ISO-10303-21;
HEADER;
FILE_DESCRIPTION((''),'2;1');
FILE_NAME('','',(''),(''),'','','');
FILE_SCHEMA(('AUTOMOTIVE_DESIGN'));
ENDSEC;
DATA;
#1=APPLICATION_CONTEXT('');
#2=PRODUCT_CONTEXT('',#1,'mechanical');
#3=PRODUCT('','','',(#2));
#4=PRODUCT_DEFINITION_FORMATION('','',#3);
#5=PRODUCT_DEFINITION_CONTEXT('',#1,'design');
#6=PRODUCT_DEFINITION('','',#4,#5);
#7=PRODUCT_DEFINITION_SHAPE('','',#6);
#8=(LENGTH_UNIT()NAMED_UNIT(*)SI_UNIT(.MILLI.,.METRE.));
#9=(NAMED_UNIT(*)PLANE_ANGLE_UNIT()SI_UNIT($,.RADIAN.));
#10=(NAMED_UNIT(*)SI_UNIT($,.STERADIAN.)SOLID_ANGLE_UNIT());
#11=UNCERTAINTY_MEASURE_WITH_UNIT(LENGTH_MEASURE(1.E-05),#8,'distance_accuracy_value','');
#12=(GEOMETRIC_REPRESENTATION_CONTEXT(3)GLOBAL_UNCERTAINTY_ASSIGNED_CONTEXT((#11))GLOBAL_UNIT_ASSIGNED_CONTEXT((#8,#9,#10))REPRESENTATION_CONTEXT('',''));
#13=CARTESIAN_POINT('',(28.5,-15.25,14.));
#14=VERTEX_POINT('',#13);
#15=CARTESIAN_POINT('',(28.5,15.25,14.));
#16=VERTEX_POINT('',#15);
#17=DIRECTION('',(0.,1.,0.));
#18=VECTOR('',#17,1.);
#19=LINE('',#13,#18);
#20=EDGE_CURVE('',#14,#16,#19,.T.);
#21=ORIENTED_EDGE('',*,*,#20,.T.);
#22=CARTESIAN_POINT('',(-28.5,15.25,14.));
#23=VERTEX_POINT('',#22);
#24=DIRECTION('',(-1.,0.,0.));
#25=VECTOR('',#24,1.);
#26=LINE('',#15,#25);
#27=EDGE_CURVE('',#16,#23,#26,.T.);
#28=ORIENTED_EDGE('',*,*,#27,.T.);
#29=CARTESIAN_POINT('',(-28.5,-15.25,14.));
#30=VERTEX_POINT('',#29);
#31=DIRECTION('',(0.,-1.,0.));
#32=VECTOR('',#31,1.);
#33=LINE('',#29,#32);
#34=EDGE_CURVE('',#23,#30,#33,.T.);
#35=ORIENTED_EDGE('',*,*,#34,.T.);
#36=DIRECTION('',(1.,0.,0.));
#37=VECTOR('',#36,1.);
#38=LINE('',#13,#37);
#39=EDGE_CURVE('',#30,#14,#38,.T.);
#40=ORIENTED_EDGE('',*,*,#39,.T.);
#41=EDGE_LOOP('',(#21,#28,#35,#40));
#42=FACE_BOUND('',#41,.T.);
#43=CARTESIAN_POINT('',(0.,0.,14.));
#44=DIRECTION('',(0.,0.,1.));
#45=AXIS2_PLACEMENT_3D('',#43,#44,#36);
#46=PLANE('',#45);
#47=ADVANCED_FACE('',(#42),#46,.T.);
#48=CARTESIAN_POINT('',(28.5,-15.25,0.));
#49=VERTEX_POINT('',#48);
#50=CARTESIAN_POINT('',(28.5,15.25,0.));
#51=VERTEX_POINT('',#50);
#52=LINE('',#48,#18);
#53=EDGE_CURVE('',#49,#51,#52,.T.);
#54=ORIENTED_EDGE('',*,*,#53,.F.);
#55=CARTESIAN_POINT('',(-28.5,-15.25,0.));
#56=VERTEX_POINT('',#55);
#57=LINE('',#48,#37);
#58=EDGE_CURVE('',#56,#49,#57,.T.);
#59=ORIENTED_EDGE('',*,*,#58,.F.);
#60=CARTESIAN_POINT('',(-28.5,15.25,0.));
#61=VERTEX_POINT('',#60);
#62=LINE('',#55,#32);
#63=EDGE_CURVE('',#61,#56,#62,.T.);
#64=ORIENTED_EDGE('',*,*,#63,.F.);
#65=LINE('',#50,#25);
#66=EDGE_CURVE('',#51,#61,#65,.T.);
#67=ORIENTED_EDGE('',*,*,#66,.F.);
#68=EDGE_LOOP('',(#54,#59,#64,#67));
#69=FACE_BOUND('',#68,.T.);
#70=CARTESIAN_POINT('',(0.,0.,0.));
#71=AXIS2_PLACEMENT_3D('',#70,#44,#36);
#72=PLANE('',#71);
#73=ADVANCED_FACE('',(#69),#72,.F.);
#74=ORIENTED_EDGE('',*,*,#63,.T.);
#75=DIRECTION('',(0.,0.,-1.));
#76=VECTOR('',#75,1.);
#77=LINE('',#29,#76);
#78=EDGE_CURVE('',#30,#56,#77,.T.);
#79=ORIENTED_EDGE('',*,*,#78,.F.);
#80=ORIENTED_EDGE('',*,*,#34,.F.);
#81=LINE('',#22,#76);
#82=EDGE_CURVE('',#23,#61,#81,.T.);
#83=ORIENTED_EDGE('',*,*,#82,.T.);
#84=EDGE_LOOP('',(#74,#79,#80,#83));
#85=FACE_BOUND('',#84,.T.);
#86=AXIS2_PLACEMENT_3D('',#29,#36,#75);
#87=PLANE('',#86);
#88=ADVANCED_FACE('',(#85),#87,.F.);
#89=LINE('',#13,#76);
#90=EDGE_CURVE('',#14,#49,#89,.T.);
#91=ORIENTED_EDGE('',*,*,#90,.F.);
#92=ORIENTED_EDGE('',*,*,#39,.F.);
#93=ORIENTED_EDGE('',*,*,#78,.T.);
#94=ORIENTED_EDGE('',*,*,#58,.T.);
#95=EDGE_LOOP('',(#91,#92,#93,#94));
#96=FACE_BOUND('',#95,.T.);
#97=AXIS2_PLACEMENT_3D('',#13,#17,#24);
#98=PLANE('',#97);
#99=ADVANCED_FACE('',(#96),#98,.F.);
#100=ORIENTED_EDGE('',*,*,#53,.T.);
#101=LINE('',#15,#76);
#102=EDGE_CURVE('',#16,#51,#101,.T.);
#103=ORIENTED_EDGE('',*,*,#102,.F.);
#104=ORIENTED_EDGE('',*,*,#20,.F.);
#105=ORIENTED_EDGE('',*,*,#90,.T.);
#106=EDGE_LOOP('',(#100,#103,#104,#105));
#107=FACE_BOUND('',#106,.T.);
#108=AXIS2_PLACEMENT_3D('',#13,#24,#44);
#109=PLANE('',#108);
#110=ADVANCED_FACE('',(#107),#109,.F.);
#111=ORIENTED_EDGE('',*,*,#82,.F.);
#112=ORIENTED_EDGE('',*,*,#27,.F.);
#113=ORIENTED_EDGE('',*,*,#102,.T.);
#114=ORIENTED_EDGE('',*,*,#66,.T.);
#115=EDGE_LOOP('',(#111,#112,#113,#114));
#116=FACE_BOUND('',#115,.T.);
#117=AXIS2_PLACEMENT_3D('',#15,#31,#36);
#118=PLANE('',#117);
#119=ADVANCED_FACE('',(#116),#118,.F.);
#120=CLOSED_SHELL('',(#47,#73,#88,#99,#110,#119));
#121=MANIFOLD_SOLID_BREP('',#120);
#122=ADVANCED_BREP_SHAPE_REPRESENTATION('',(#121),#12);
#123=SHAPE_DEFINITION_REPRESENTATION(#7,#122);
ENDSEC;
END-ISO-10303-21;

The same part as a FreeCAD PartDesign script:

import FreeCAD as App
import Part
import Sketcher
from FreeCAD import Vector

doc = App.newDocument("Part")
body = doc.addObject("PartDesign::Body", "Body")

sketch1 = doc.addObject("Sketcher::SketchObject", "Sketch")
body.addObject(sketch1)
sketch1.AttachmentSupport = (doc.XY_Plane, [""])
sketch1.MapMode = "FlatFace"
sketch1.addGeometry([
    Part.LineSegment(Vector(-28, 15, 0), Vector(-28, -15, 0)),
    Part.LineSegment(Vector(-28, -15, 0), Vector(28, -15, 0)),
    Part.LineSegment(Vector(28, -15, 0), Vector(28, 15, 0)),
    Part.LineSegment(Vector(28, 15, 0), Vector(-28, 15, 0)),
], False)
sketch1.addConstraint([
    Sketcher.Constraint("Coincident", 0, 2, 1, 1),
    Sketcher.Constraint("Coincident", 1, 2, 2, 1),
    Sketcher.Constraint("Coincident", 2, 2, 3, 1),
    Sketcher.Constraint("Coincident", 3, 2, 0, 1),
    Sketcher.Constraint("Vertical", 0),
    Sketcher.Constraint("Horizontal", 1),
    Sketcher.Constraint("Vertical", 2),
    Sketcher.Constraint("Horizontal", 3),
    Sketcher.Constraint("Symmetric", 0, 2, 2, 2, -1, 1),
    Sketcher.Constraint("DistanceX", 1, 1, 1, 2, 57.0),
    Sketcher.Constraint("DistanceY", 0, 2, 0, 1, 30.5),
])
pad1 = doc.addObject("PartDesign::Pad", "Pad")
body.addObject(pad1)
pad1.Profile = sketch1
pad1.Length = 14

doc.recompute()
